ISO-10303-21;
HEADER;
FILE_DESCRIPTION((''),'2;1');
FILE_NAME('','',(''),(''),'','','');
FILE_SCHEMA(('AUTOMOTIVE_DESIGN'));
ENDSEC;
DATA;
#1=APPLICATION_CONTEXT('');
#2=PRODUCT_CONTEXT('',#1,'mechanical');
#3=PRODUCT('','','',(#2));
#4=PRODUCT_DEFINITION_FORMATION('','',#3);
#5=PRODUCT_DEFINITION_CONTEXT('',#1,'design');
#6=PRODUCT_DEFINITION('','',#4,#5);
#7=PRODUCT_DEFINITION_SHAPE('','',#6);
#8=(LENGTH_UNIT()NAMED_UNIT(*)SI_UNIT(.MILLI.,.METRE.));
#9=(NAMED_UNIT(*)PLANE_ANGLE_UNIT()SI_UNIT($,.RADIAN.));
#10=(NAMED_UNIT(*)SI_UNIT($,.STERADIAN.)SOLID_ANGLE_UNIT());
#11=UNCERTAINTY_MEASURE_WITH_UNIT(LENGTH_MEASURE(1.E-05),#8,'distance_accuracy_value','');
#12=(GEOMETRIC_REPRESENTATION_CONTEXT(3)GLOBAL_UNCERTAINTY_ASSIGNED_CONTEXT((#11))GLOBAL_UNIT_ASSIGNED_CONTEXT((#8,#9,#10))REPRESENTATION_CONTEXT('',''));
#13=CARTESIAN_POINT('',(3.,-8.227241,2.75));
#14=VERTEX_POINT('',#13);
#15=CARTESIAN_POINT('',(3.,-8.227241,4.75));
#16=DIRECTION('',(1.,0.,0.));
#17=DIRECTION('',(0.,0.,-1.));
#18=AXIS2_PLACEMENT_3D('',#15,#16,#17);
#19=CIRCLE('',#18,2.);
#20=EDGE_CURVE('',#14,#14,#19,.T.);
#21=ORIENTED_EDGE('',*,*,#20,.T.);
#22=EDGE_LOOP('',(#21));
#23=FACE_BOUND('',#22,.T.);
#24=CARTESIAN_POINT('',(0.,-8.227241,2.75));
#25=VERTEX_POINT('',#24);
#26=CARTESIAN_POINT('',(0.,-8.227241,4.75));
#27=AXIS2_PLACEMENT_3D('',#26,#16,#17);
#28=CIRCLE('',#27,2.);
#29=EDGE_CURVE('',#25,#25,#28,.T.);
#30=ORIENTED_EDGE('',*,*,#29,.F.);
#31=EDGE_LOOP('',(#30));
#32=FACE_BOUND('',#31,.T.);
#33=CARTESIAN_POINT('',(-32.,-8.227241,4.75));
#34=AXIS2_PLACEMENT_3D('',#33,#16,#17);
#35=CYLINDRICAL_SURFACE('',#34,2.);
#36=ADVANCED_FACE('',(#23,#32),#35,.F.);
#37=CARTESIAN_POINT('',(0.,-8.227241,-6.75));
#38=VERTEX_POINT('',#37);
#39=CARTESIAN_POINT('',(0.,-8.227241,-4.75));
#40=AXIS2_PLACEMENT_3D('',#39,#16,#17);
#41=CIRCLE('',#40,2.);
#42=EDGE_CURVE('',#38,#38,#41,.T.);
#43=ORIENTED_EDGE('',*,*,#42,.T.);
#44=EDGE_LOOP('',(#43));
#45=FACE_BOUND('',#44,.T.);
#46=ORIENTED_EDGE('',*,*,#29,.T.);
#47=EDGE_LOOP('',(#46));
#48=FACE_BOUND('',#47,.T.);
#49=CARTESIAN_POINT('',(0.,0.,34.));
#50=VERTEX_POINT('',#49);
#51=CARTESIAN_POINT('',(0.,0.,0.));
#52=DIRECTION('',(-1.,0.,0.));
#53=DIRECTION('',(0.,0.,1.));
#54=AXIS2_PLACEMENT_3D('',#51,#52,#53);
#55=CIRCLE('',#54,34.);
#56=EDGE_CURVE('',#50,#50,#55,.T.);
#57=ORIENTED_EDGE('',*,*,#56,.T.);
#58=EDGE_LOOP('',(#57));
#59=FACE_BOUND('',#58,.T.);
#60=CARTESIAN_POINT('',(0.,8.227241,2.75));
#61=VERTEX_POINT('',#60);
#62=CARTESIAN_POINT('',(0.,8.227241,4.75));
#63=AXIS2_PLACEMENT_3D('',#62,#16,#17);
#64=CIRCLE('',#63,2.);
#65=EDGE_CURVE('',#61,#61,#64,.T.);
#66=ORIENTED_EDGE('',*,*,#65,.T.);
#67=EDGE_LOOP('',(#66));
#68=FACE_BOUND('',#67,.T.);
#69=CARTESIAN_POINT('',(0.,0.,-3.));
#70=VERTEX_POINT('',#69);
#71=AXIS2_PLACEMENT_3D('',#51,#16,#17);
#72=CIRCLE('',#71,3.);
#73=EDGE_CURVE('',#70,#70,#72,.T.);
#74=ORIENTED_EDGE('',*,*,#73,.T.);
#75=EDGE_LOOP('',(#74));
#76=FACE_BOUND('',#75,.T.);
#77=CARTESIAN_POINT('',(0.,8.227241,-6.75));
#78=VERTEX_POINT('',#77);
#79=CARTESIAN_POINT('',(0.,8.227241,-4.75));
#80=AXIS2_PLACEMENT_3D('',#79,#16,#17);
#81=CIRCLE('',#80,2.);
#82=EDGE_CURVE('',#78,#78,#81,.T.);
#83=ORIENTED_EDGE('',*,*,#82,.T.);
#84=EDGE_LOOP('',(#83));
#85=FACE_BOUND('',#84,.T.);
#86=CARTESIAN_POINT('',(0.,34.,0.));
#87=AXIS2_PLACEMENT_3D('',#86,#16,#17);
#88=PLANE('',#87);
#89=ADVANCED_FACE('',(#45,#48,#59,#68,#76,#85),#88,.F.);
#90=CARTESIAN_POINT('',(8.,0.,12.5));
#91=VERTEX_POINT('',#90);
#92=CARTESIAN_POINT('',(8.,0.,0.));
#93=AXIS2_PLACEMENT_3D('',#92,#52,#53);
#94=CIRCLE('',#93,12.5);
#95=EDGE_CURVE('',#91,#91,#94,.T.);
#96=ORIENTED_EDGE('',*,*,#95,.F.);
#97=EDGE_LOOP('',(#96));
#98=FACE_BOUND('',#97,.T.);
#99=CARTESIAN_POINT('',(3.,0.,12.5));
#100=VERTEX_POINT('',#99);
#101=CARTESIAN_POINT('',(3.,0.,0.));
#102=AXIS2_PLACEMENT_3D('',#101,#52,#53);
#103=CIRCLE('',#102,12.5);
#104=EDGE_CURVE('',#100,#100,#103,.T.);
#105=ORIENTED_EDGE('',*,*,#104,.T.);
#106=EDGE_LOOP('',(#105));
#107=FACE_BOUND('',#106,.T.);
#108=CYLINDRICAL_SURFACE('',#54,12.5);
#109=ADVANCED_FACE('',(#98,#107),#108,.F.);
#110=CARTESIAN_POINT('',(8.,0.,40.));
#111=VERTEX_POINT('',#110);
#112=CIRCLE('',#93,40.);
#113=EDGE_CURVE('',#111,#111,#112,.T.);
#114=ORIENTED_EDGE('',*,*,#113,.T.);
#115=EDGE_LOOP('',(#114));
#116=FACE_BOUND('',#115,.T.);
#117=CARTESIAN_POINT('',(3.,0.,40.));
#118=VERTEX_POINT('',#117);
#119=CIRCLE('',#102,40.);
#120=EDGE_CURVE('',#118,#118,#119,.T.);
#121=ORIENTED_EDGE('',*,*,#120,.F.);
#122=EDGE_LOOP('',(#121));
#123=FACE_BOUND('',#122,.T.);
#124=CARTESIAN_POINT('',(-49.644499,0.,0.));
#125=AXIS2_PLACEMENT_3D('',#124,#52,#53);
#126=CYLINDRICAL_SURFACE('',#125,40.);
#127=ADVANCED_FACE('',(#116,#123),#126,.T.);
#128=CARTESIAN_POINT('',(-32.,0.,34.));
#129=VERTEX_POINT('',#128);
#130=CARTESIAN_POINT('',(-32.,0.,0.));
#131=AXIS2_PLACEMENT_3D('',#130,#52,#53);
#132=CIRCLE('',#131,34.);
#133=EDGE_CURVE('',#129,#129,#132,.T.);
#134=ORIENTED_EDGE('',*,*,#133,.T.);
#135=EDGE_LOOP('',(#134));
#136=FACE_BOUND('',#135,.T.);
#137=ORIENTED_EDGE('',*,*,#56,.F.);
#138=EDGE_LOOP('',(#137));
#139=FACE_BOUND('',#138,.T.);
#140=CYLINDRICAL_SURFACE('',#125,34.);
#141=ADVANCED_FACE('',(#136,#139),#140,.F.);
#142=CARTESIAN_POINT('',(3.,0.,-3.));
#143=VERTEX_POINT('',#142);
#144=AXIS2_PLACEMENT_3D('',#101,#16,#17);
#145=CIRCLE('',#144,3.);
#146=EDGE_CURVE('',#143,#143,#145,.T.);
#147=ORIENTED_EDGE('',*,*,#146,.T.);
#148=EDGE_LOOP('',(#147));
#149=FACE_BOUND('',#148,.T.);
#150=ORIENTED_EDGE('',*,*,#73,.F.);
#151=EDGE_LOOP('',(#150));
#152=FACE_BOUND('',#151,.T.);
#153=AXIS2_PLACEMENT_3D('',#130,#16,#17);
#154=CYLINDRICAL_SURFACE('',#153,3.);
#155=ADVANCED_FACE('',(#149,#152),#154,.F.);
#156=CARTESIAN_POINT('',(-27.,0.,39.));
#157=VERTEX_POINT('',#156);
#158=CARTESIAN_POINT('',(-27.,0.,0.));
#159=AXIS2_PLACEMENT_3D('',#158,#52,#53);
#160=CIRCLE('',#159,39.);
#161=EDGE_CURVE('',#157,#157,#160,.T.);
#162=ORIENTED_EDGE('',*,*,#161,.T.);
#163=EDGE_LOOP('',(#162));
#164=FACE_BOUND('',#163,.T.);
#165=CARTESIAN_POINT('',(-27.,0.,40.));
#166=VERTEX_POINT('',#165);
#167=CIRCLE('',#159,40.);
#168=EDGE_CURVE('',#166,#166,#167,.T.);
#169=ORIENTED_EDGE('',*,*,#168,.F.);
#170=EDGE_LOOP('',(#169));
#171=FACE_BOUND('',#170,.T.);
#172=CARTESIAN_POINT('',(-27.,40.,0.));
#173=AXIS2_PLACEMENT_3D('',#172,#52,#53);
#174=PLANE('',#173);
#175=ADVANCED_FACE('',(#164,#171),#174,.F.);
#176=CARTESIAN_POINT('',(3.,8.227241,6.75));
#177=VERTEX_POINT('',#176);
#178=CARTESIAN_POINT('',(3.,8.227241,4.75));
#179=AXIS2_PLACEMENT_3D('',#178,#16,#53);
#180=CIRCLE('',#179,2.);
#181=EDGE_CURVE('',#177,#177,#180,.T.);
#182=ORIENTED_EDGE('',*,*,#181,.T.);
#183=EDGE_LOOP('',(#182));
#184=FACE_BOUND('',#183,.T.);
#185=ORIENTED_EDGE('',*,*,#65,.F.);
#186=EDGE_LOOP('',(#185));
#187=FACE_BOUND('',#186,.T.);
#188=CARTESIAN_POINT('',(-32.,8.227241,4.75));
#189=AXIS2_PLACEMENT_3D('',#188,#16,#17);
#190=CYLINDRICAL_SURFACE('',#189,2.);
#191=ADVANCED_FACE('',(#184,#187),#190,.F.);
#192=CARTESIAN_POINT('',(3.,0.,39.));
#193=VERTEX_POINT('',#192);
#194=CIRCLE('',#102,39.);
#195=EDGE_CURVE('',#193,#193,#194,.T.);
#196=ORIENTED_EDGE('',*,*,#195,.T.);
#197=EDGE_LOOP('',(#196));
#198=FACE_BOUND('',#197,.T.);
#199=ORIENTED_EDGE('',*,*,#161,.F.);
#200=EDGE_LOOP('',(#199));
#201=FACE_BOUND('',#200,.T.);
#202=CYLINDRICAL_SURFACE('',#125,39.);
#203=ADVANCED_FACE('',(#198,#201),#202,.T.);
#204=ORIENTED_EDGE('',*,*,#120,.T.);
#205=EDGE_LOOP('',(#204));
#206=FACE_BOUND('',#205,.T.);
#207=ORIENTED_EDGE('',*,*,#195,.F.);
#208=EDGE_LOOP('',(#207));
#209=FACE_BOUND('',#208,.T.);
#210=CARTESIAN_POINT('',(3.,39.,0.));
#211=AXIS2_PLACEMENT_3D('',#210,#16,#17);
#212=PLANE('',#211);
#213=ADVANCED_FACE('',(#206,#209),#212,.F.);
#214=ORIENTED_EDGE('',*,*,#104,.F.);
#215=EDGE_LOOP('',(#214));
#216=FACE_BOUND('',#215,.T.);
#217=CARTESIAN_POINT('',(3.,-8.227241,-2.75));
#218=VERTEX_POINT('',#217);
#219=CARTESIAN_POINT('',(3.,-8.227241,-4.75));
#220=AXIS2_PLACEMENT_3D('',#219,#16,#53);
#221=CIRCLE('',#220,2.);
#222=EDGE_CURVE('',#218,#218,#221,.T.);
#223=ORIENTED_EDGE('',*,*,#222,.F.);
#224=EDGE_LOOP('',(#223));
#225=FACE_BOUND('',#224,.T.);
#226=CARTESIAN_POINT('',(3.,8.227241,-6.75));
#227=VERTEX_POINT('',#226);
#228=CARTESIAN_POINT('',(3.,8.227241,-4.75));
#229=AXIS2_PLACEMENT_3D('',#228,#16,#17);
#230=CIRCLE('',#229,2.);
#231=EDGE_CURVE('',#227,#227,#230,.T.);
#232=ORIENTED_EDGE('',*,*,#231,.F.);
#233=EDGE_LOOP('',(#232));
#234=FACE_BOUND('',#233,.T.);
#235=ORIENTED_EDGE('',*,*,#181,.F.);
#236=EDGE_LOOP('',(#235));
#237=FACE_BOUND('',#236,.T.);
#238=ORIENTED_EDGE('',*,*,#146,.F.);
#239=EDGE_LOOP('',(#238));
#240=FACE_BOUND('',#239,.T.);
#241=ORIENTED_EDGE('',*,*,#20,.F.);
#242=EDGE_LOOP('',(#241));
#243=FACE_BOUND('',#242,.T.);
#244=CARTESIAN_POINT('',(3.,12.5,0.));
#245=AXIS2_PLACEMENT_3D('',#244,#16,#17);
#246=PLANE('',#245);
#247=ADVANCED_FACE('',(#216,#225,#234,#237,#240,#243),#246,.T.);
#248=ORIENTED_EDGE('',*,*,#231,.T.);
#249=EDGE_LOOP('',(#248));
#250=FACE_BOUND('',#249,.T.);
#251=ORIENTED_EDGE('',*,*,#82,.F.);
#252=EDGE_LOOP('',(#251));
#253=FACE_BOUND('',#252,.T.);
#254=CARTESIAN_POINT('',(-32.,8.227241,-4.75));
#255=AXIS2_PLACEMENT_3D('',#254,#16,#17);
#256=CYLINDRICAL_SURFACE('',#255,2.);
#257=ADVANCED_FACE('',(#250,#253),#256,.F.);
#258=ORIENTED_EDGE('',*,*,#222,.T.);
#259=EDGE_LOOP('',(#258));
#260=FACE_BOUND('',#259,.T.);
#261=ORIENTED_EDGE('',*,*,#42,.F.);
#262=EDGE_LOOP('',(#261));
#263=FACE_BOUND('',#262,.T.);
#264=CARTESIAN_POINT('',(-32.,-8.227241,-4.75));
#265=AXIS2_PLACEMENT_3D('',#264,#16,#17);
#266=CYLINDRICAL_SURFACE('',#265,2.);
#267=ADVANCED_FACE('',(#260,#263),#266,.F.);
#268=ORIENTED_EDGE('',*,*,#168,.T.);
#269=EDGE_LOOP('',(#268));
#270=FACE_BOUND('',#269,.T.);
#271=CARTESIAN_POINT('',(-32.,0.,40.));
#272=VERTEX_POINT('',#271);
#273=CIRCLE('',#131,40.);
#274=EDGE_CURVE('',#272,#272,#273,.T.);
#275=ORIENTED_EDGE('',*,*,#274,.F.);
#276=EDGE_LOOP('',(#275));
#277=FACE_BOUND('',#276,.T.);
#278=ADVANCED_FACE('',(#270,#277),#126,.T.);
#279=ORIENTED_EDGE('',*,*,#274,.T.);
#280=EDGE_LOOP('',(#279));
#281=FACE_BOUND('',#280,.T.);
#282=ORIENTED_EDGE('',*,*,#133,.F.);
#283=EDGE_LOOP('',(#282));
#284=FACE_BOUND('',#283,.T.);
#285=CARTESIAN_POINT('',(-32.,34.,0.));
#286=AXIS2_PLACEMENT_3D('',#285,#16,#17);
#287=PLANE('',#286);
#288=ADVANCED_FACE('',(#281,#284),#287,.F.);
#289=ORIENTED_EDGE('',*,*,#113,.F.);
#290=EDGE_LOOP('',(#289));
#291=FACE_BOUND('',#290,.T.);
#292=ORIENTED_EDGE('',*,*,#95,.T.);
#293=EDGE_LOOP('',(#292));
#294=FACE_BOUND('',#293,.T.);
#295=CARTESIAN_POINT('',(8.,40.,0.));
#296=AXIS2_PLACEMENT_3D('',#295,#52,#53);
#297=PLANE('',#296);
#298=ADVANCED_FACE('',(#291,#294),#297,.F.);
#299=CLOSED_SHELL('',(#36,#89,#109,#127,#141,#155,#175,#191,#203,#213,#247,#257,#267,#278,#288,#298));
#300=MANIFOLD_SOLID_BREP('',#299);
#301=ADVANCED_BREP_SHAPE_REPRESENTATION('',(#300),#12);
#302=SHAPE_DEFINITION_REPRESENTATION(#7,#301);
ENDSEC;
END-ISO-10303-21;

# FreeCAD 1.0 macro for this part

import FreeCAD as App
import Part
import Sketcher
from FreeCAD import Vector

doc = App.newDocument("Part")
params = doc.addObject("Spreadsheet::Sheet", "Params")
for row, (alias, value) in enumerate([
    ("sketch1_width", "8 mm"),
    ("sketch1_width2", "5 mm"),
    ("sketch1_width3", "30 mm"),
    ("sketch1_height", "34 mm"),
    ("sketch1_height2", "40 mm"),
    ("revolution_angle", "360 deg"),
    ("sketch2_width", "5 mm"),
    ("sketch2_height", "12.5 mm"),
    ("groove_angle", "360 deg"),
    ("sketch3_diameter", "4 mm"),
    ("sketch4_diameter", "6 mm"),
], start=1):
    params.set(f"A{row}", alias)
    params.set(f"B{row}", "=" + value)
    params.setAlias(f"B{row}", alias)

body = doc.addObject("PartDesign::Body", "Body")

sketch1 = body.newObject("Sketcher::SketchObject", "Sketch")
sketch1.AttachmentSupport = (doc.getObject("XY_Plane"), [""])
sketch1.MapMode = "FlatFace"
sketch1.addGeometry(Part.LineSegment(Vector(0, 34, 0), Vector(0, 0, 0)), False)
sketch1.addGeometry(Part.LineSegment(Vector(0, 0, 0), Vector(8, 0, 0)), False)
sketch1.addGeometry(Part.LineSegment(Vector(8, 0, 0), Vector(8, 40, 0)), False)
sketch1.addGeometry(Part.LineSegment(Vector(8, 40, 0), Vector(3, 40, 0)), False)
sketch1.addGeometry(Part.LineSegment(Vector(3, 40, 0), Vector(3, 39, 0)), False)
sketch1.addGeometry(Part.LineSegment(Vector(3, 39, 0), Vector(-27, 39, 0)), False)
sketch1.addGeometry(Part.LineSegment(Vector(-27, 39, 0), Vector(-27, 40, 0)), False)
sketch1.addGeometry(Part.LineSegment(Vector(-27, 40, 0), Vector(-32, 40, 0)), False)
sketch1.addGeometry(Part.LineSegment(Vector(-32, 40, 0), Vector(-32, 34, 0)), False)
sketch1.addGeometry(Part.LineSegment(Vector(-32, 34, 0), Vector(0, 34, 0)), False)
sketch1.addConstraint(Sketcher.Constraint("Coincident", 0, 2, 1, 1))
sketch1.addConstraint(Sketcher.Constraint("Coincident", 1, 2, 2, 1))
sketch1.addConstraint(Sketcher.Constraint("Coincident", 2, 2, 3, 1))
sketch1.addConstraint(Sketcher.Constraint("Coincident", 3, 2, 4, 1))
sketch1.addConstraint(Sketcher.Constraint("Coincident", 4, 2, 5, 1))
sketch1.addConstraint(Sketcher.Constraint("Coincident", 5, 2, 6, 1))
sketch1.addConstraint(Sketcher.Constraint("Coincident", 6, 2, 7, 1))
sketch1.addConstraint(Sketcher.Constraint("Coincident", 7, 2, 8, 1))
sketch1.addConstraint(Sketcher.Constraint("Coincident", 8, 2, 9, 1))
sketch1.addConstraint(Sketcher.Constraint("Coincident", 9, 2, 0, 1))
sketch1.addConstraint(Sketcher.Constraint("Vertical", 0))
sketch1.addConstraint(Sketcher.Constraint("Horizontal", 1))
sketch1.addConstraint(Sketcher.Constraint("Vertical", 2))
sketch1.addConstraint(Sketcher.Constraint("Horizontal", 3))
sketch1.addConstraint(Sketcher.Constraint("Vertical", 4))
sketch1.addConstraint(Sketcher.Constraint("Horizontal", 5))
sketch1.addConstraint(Sketcher.Constraint("Vertical", 6))
sketch1.addConstraint(Sketcher.Constraint("Horizontal", 7))
sketch1.addConstraint(Sketcher.Constraint("Vertical", 8))
sketch1.addConstraint(Sketcher.Constraint("Horizontal", 9))
sketch1.addConstraint(Sketcher.Constraint("Coincident", 0, 2, -1, 1))
sketch1.addConstraint(Sketcher.Constraint("Horizontal", 3, 2, 6, 2))
sketch1.addConstraint(Sketcher.Constraint("Equal", 3, 7))
sketch1.addConstraint(Sketcher.Constraint("DistanceX", 1, 1, 1, 2, 8.0))
sketch1.addConstraint(Sketcher.Constraint("DistanceX", 3, 2, 3, 1, 5.0))
sketch1.addConstraint(Sketcher.Constraint("DistanceX", 5, 2, 5, 1, 30.0))
sketch1.addConstraint(Sketcher.Constraint("DistanceY", 0, 2, 0, 1, 34.0))
sketch1.addConstraint(Sketcher.Constraint("DistanceY", 2, 1, 2, 2, 40.0))
sketch1.addConstraint(Sketcher.Constraint("DistanceY", 4, 2, 4, 1, 1.0))
sketch1.setExpression("Constraints[23]", "Params.sketch1_width")
sketch1.setExpression("Constraints[24]", "Params.sketch1_width2")
sketch1.setExpression("Constraints[25]", "Params.sketch1_width3")
sketch1.setExpression("Constraints[26]", "Params.sketch1_height")
sketch1.setExpression("Constraints[27]", "Params.sketch1_height2")
revolution = body.newObject("PartDesign::Revolution", "Revolution")
revolution.Profile = sketch1
revolution.ReferenceAxis = (sketch1, ["H_Axis"])
revolution.setExpression("Angle", "Params.revolution_angle")

sketch2 = body.newObject("Sketcher::SketchObject", "Sketch001")
sketch2.AttachmentSupport = (doc.getObject("XY_Plane"), [""])
sketch2.MapMode = "FlatFace"
sketch2.addGeometry(Part.LineSegment(Vector(3, 12, 0), Vector(3, 0, 0)), False)
sketch2.addGeometry(Part.LineSegment(Vector(3, 0, 0), Vector(8, 0, 0)), False)
sketch2.addGeometry(Part.LineSegment(Vector(8, 0, 0), Vector(8, 12, 0)), False)
sketch2.addGeometry(Part.LineSegment(Vector(8, 12, 0), Vector(3, 12, 0)), False)
sketch2.addConstraint(Sketcher.Constraint("Coincident", 0, 2, 1, 1))
sketch2.addConstraint(Sketcher.Constraint("Coincident", 1, 2, 2, 1))
sketch2.addConstraint(Sketcher.Constraint("Coincident", 2, 2, 3, 1))
sketch2.addConstraint(Sketcher.Constraint("Coincident", 3, 2, 0, 1))
sketch2.addConstraint(Sketcher.Constraint("Vertical", 0))
sketch2.addConstraint(Sketcher.Constraint("Horizontal", 1))
sketch2.addConstraint(Sketcher.Constraint("Vertical", 2))
sketch2.addConstraint(Sketcher.Constraint("Horizontal", 3))
sketch2.addConstraint(Sketcher.Constraint("PointOnObject", 0, 2, -1))
sketch2.addConstraint(Sketcher.Constraint("DistanceX", 1, 1, 1, 2, 5.0))
sketch2.addConstraint(Sketcher.Constraint("DistanceY", 0, 2, 0, 1, 12.5))
sketch2.addConstraint(Sketcher.Constraint("DistanceX", -1, 1, 0, 2, 3.0))
sketch2.setExpression("Constraints[9]", "Params.sketch2_width")
sketch2.setExpression("Constraints[10]", "Params.sketch2_height")
groove = body.newObject("PartDesign::Groove", "Groove")
groove.Profile = sketch2
groove.ReferenceAxis = (sketch2, ["H_Axis"])
groove.setExpression("Angle", "Params.groove_angle")

sketch3 = body.newObject("Sketcher::SketchObject", "Sketch002")
sketch3.AttachmentSupport = (doc.getObject("YZ_Plane"), [""])
sketch3.MapMode = "FlatFace"
sketch3.AttachmentOffset = App.Placement(Vector(0, 0, 3), App.Rotation())
sketch3.addGeometry(Part.Circle(Vector(8.2, -4.8, 0), Vector(0, 0, 1), 2), False)
sketch3.addGeometry(Part.Circle(Vector(8.2, 4.8, 0), Vector(0, 0, 1), 2), False)
sketch3.addGeometry(Part.Circle(Vector(-8.2, -4.8, 0), Vector(0, 0, 1), 2), False)
sketch3.addGeometry(Part.Circle(Vector(-8.2, 4.8, 0), Vector(0, 0, 1), 2), False)
sketch3.addConstraint(Sketcher.Constraint("Equal", 0, 1))
sketch3.addConstraint(Sketcher.Constraint("Equal", 1, 2))
sketch3.addConstraint(Sketcher.Constraint("Equal", 2, 3))
sketch3.addConstraint(Sketcher.Constraint("Symmetric", 1, 3, 2, 3, -1, 1))
sketch3.addConstraint(Sketcher.Constraint("Symmetric", 0, 3, 3, 3, -1, 1))
sketch3.addConstraint(Sketcher.Constraint("Symmetric", 0, 3, 2, 3, -2))
sketch3.addConstraint(Sketcher.Constraint("Diameter", 0, 4.0))
sketch3.addConstraint(Sketcher.Constraint("DistanceY", 0, 3, 1, 3, 9.5))
sketch3.addConstraint(Sketcher.Constraint("DistanceX", -1, 1, 0, 3, 8.227241))
sketch3.setExpression("Constraints[6]", "Params.sketch3_diameter")
pocket1 = body.newObject("PartDesign::Pocket", "Pocket")
pocket1.Profile = sketch3
pocket1.Type = "ThroughAll"

sketch4 = body.newObject("Sketcher::SketchObject", "Sketch003")
sketch4.AttachmentSupport = (doc.getObject("YZ_Plane"), [""])
sketch4.MapMode = "FlatFace"
sketch4.AttachmentOffset = App.Placement(Vector(0, 0, 3), App.Rotation())
sketch4.addGeometry(Part.Circle(Vector(0, 0, 0), Vector(0, 0, 1), 3), False)
sketch4.addConstraint(Sketcher.Constraint("Coincident", 0, 3, -1, 1))
sketch4.addConstraint(Sketcher.Constraint("Diameter", 0, 6.0))
sketch4.setExpression("Constraints[1]", "Params.sketch4_diameter")
pocket2 = body.newObject("PartDesign::Pocket", "Pocket001")
pocket2.Profile = sketch4
pocket2.Type = "ThroughAll"

doc.recompute()
